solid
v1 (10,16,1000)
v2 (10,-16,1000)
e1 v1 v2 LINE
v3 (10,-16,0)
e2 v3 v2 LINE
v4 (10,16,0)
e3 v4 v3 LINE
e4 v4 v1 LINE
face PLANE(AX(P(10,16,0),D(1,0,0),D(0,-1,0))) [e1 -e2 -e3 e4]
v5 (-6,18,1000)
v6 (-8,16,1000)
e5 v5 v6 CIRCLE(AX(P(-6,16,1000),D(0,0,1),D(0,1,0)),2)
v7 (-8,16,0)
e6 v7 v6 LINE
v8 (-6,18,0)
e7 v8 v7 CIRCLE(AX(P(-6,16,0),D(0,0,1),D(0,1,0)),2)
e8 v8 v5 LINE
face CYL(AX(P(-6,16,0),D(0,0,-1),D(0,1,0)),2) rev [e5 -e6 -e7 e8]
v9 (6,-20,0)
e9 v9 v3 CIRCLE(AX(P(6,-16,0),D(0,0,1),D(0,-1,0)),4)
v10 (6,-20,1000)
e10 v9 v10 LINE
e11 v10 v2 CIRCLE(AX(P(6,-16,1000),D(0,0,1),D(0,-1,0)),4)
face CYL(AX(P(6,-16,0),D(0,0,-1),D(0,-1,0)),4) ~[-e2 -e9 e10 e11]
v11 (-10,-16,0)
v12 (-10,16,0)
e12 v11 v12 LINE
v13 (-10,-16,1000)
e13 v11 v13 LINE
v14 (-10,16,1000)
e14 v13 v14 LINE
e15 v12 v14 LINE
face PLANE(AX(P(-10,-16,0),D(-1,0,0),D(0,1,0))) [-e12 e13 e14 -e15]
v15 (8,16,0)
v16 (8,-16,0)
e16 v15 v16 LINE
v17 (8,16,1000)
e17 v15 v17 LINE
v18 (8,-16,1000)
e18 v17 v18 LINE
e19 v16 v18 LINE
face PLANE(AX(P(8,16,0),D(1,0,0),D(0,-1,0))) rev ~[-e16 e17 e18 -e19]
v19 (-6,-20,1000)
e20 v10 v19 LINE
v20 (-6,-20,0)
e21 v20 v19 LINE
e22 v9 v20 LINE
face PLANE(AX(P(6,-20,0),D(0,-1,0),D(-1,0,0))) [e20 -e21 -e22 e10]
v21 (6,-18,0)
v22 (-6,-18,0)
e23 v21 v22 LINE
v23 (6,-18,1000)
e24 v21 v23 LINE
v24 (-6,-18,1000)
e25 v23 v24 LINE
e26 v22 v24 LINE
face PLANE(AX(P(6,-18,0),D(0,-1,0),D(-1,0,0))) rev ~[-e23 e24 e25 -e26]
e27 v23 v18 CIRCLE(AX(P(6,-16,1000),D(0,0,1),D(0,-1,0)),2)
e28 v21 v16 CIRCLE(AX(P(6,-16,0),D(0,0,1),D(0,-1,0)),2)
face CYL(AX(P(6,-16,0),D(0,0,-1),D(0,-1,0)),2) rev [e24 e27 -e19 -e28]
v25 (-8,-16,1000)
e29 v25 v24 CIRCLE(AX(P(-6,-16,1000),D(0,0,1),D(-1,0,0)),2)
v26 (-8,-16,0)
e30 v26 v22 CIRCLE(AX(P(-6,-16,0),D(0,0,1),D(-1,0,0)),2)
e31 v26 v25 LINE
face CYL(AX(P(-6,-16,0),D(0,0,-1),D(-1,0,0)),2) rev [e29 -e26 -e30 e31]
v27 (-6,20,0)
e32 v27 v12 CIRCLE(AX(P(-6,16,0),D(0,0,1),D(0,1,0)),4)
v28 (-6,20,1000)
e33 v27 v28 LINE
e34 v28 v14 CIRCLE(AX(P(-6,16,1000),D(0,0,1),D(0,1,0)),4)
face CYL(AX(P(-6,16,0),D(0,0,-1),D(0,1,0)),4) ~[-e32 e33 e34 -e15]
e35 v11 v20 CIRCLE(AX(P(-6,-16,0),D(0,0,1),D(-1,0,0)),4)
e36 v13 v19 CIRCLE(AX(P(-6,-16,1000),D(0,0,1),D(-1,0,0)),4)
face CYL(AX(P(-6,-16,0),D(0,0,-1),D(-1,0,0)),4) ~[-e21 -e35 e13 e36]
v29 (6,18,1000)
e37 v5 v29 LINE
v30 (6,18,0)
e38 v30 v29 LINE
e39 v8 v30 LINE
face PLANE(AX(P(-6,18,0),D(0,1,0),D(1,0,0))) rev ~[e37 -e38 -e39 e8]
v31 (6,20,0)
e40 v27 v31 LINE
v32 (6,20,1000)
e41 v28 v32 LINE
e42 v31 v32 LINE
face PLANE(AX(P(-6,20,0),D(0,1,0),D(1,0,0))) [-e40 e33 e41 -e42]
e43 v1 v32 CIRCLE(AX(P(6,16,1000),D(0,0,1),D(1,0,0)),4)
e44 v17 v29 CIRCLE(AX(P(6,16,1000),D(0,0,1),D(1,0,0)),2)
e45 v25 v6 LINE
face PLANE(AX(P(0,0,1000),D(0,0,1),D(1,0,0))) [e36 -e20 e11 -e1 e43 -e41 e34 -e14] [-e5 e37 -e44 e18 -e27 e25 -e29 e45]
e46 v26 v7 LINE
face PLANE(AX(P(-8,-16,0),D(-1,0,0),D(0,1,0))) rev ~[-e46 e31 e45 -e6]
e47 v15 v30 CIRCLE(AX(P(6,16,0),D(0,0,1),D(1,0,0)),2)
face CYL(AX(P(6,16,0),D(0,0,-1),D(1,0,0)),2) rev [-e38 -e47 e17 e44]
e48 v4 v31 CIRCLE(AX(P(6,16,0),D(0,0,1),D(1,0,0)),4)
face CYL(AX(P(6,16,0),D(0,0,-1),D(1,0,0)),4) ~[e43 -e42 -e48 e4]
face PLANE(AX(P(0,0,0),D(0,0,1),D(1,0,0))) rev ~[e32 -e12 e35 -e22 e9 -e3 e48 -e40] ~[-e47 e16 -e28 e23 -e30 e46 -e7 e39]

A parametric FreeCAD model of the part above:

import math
import FreeCAD as App
import Part
import Sketcher

V = App.Vector
Q = App.Units.Quantity

doc = App.newDocument("Part")
body = doc.addObject("PartDesign::Body", "Body")

sketch1 = body.newObject("Sketcher::SketchObject", "Sketch")
sketch1.AttachmentSupport = (doc.getObject("XY_Plane"), [""])
sketch1.MapMode = "FlatFace"
sketch1.addGeometry(Part.LineSegment(V(-10, 16, 0), V(-10, -16, 0)), False)
sketch1.addGeometry(Part.ArcOfCircle(Part.Circle(V(-6, -16, 0), V(0, 0, 1), 4), math.radians(180), math.radians(270)), False)
sketch1.addGeometry(Part.LineSegment(V(-6, -20, 0), V(6, -20, 0)), False)
sketch1.addGeometry(Part.ArcOfCircle(Part.Circle(V(6, -16, 0), V(0, 0, 1), 4), math.radians(-90), math.radians(0)), False)
sketch1.addGeometry(Part.LineSegment(V(10, -16, 0), V(10, 16, 0)), False)
sketch1.addGeometry(Part.ArcOfCircle(Part.Circle(V(6, 16, 0), V(0, 0, 1), 4), math.radians(0), math.radians(90)), False)
sketch1.addGeometry(Part.LineSegment(V(6, 20, 0), V(-6, 20, 0)), False)
sketch1.addGeometry(Part.ArcOfCircle(Part.Circle(V(-6, 16, 0), V(0, 0, 1), 4), math.radians(90), math.radians(180)), False)
sketch1.addGeometry(Part.ArcOfCircle(Part.Circle(V(-6, 16, 0), V(0, 0, 1), 2), math.radians(90), math.radians(180)), False)
sketch1.addGeometry(Part.LineSegment(V(-6, 18, 0), V(6, 18, 0)), False)
sketch1.addGeometry(Part.ArcOfCircle(Part.Circle(V(6, 16, 0), V(0, 0, 1), 2), math.radians(0), math.radians(90)), False)
sketch1.addGeometry(Part.LineSegment(V(8, 16, 0), V(8, -16, 0)), False)
sketch1.addGeometry(Part.ArcOfCircle(Part.Circle(V(6, -16, 0), V(0, 0, 1), 2), math.radians(-90), math.radians(0)), False)
sketch1.addGeometry(Part.LineSegment(V(6, -18, 0), V(-6, -18, 0)), False)
sketch1.addGeometry(Part.ArcOfCircle(Part.Circle(V(-6, -16, 0), V(0, 0, 1), 2), math.radians(180), math.radians(270)), False)
sketch1.addGeometry(Part.LineSegment(V(-8, -16, 0), V(-8, 16, 0)), False)
sketch1.addConstraint(Sketcher.Constraint("Tangent", 0, 2, 1, 1))
sketch1.addConstraint(Sketcher.Constraint("Tangent", 1, 2, 2, 1))
sketch1.addConstraint(Sketcher.Constraint("Tangent", 2, 2, 3, 1))
sketch1.addConstraint(Sketcher.Constraint("Tangent", 3, 2, 4, 1))
sketch1.addConstraint(Sketcher.Constraint("Tangent", 4, 2, 5, 1))
sketch1.addConstraint(Sketcher.Constraint("Tangent", 5, 2, 6, 1))
sketch1.addConstraint(Sketcher.Constraint("Tangent", 6, 2, 7, 1))
sketch1.addConstraint(Sketcher.Constraint("Tangent", 7, 2, 0, 1))
sketch1.addConstraint(Sketcher.Constraint("Tangent", 8, 1, 9, 1))
sketch1.addConstraint(Sketcher.Constraint("Tangent", 9, 2, 10, 2))
sketch1.addConstraint(Sketcher.Constraint("Tangent", 10, 1, 11, 1))
sketch1.addConstraint(Sketcher.Constraint("Tangent", 11, 2, 12, 2))
sketch1.addConstraint(Sketcher.Constraint("Tangent", 12, 1, 13, 1))
sketch1.addConstraint(Sketcher.Constraint("Tangent", 13, 2, 14, 2))
sketch1.addConstraint(Sketcher.Constraint("Tangent", 14, 1, 15, 1))
sketch1.addConstraint(Sketcher.Constraint("Tangent", 15, 2, 8, 2))
sketch1.addConstraint(Sketcher.Constraint("Vertical", 0))
sketch1.addConstraint(Sketcher.Constraint("Horizontal", 2))
sketch1.addConstraint(Sketcher.Constraint("Vertical", 4))
sketch1.addConstraint(Sketcher.Constraint("Horizontal", 6))
sketch1.addConstraint(Sketcher.Constraint("Horizontal", 9))
sketch1.addConstraint(Sketcher.Constraint("Vertical", 11))
sketch1.addConstraint(Sketcher.Constraint("Horizontal", 13))
sketch1.addConstraint(Sketcher.Constraint("Vertical", 15))
sketch1.addConstraint(Sketcher.Constraint("Coincident", 8, 3, 7, 3))
sketch1.addConstraint(Sketcher.Constraint("Coincident", 10, 3, 5, 3))
sketch1.addConstraint(Sketcher.Constraint("Coincident", 12, 3, 3, 3))
sketch1.addConstraint(Sketcher.Constraint("Equal", 1, 3))
sketch1.addConstraint(Sketcher.Constraint("Equal", 3, 5))
sketch1.addConstraint(Sketcher.Constraint("Equal", 5, 7))
sketch1.addConstraint(Sketcher.Constraint("Equal", 12, 14))
sketch1.addConstraint(Sketcher.Constraint("Symmetric", 1, 3, 5, 3, -1, 1))
sketch1.addConstraint(Sketcher.Constraint("Radius", 1, Q("4 mm")))
sketch1.addConstraint(Sketcher.Constraint("Radius", 8, Q("2 mm")))
sketch1.addConstraint(Sketcher.Constraint("DistanceX", 0, 2, -1, 1, Q("10 mm")))
sketch1.addConstraint(Sketcher.Constraint("DistanceY", 1, 2, -1, 1, Q("20 mm")))
pad1 = body.newObject("PartDesign::Pad", "Pad")
pad1.Profile = sketch1
pad1.Length = 1000

doc.recompute()
